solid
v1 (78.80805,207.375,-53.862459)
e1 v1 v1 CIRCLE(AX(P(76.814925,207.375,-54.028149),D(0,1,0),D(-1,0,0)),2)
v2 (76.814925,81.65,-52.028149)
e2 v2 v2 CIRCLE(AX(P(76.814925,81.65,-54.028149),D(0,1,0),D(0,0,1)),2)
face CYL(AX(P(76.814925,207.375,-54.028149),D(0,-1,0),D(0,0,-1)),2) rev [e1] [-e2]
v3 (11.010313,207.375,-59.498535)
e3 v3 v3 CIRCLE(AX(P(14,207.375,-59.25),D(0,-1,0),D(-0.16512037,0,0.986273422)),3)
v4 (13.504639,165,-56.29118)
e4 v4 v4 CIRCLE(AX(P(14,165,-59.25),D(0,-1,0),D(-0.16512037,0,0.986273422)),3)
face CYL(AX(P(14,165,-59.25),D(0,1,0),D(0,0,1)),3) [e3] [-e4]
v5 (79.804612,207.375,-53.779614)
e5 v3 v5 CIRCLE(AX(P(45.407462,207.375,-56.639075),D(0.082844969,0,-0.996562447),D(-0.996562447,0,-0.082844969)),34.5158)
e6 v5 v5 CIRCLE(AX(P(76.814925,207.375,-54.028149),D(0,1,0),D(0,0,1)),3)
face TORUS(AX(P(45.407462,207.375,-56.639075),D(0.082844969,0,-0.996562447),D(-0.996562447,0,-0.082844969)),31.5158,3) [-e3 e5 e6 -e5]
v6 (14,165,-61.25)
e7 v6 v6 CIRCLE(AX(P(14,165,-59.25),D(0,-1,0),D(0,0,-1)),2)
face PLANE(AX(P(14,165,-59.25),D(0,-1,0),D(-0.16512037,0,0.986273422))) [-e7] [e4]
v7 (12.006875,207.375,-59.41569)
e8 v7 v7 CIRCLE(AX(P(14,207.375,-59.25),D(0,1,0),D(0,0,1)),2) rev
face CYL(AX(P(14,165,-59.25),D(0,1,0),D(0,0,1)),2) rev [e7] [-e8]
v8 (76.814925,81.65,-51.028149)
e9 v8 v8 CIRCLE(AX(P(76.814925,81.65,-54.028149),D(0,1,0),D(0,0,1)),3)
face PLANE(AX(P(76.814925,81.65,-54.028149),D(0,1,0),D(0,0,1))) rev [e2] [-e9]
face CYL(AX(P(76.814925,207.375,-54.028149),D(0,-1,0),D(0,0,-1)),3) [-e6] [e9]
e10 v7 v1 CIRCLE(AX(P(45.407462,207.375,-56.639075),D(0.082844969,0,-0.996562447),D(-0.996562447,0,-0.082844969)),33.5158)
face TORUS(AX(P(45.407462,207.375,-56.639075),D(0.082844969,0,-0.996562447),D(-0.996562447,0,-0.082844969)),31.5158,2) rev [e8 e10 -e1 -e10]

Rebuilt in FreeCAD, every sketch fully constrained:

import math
import FreeCAD as App
import Part
import Sketcher
from FreeCAD import Vector
Q = App.Units.Quantity

doc = App.newDocument("Part")
body = doc.addObject("PartDesign::Body", "Body")

# Sketch on XZ plane
sketch1 = body.newObject("Sketcher::SketchObject", "Sketch")
sketch1.AttachmentSupport = (doc.getObject("XZ_Plane"), [""])
sketch1.MapMode = "FlatFace"
sketch1.AttachmentOffset = App.Placement(Vector(0, 0, -165), App.Rotation())
sketch1.addGeometry([
    Part.Circle(Vector(14, -59.2, 0), Vector(0, 0, 1), 3),
    Part.Circle(Vector(14, -59.2, 0), Vector(0, 0, 1), 2),
], False)
sketch1.addConstraint([
    Sketcher.Constraint("Coincident", 1, 3, 0, 3),
    Sketcher.Constraint("Diameter", 0, Q("6 mm")),
    Sketcher.Constraint("Diameter", 1, Q("4 mm")),
    Sketcher.Constraint("DistanceX", -1, 1, 0, 3, Q("14 mm")),
    Sketcher.Constraint("DistanceY", 0, 3, -1, 1, Q("59.25 mm")),
])

# Sketch on an angled plane
sketch2 = body.newObject("Sketcher::SketchObject", "Sketch001")
sketch2.Placement = App.Placement(Vector(4.987777, 0, -59.999193), App.Rotation(Vector(0.996562447, 0, 0.082844969), Vector(0, 1, 0), Vector(-0.082844969, 0, 0.996562447), "ZXY"))
sketch2.addGeometry([
    Part.LineSegment(Vector(9, 165, 0), Vector(9, 207, 0)),
    Part.ArcOfCircle(Part.Circle(Vector(41, 207, 0), Vector(0, 0, 1), 32), math.radians(0), math.radians(180)),
    Part.LineSegment(Vector(72, 207, 0), Vector(72, 82, 0)),
], False)
sketch2.addConstraint([
    Sketcher.Constraint("Tangent", 0, 2, 1, 2),
    Sketcher.Constraint("Tangent", 1, 1, 2, 1),
    Sketcher.Constraint("Vertical", 0),
    Sketcher.Constraint("Vertical", 2),
    Sketcher.Constraint("DistanceY", -1, 1, 0, 1, Q("165 mm")),
    Sketcher.Constraint("Radius", 1, Q("31.5158 mm")),
    Sketcher.Constraint("DistanceY", 0, 1, 0, 2, Q("42.375 mm")),
    Sketcher.Constraint("DistanceY", 2, 2, 2, 1, Q("125.725 mm")),
    Sketcher.Constraint("DistanceX", -1, 1, 1, 3, Q("40.559109 mm")),
])
doc.recompute()

additivepipe = body.newObject("PartDesign::AdditivePipe", "AdditivePipe")
additivepipe.Profile = sketch1
additivepipe.Spine = (sketch2, ["Edge1", "Edge2", "Edge3"])

doc.recompute()
